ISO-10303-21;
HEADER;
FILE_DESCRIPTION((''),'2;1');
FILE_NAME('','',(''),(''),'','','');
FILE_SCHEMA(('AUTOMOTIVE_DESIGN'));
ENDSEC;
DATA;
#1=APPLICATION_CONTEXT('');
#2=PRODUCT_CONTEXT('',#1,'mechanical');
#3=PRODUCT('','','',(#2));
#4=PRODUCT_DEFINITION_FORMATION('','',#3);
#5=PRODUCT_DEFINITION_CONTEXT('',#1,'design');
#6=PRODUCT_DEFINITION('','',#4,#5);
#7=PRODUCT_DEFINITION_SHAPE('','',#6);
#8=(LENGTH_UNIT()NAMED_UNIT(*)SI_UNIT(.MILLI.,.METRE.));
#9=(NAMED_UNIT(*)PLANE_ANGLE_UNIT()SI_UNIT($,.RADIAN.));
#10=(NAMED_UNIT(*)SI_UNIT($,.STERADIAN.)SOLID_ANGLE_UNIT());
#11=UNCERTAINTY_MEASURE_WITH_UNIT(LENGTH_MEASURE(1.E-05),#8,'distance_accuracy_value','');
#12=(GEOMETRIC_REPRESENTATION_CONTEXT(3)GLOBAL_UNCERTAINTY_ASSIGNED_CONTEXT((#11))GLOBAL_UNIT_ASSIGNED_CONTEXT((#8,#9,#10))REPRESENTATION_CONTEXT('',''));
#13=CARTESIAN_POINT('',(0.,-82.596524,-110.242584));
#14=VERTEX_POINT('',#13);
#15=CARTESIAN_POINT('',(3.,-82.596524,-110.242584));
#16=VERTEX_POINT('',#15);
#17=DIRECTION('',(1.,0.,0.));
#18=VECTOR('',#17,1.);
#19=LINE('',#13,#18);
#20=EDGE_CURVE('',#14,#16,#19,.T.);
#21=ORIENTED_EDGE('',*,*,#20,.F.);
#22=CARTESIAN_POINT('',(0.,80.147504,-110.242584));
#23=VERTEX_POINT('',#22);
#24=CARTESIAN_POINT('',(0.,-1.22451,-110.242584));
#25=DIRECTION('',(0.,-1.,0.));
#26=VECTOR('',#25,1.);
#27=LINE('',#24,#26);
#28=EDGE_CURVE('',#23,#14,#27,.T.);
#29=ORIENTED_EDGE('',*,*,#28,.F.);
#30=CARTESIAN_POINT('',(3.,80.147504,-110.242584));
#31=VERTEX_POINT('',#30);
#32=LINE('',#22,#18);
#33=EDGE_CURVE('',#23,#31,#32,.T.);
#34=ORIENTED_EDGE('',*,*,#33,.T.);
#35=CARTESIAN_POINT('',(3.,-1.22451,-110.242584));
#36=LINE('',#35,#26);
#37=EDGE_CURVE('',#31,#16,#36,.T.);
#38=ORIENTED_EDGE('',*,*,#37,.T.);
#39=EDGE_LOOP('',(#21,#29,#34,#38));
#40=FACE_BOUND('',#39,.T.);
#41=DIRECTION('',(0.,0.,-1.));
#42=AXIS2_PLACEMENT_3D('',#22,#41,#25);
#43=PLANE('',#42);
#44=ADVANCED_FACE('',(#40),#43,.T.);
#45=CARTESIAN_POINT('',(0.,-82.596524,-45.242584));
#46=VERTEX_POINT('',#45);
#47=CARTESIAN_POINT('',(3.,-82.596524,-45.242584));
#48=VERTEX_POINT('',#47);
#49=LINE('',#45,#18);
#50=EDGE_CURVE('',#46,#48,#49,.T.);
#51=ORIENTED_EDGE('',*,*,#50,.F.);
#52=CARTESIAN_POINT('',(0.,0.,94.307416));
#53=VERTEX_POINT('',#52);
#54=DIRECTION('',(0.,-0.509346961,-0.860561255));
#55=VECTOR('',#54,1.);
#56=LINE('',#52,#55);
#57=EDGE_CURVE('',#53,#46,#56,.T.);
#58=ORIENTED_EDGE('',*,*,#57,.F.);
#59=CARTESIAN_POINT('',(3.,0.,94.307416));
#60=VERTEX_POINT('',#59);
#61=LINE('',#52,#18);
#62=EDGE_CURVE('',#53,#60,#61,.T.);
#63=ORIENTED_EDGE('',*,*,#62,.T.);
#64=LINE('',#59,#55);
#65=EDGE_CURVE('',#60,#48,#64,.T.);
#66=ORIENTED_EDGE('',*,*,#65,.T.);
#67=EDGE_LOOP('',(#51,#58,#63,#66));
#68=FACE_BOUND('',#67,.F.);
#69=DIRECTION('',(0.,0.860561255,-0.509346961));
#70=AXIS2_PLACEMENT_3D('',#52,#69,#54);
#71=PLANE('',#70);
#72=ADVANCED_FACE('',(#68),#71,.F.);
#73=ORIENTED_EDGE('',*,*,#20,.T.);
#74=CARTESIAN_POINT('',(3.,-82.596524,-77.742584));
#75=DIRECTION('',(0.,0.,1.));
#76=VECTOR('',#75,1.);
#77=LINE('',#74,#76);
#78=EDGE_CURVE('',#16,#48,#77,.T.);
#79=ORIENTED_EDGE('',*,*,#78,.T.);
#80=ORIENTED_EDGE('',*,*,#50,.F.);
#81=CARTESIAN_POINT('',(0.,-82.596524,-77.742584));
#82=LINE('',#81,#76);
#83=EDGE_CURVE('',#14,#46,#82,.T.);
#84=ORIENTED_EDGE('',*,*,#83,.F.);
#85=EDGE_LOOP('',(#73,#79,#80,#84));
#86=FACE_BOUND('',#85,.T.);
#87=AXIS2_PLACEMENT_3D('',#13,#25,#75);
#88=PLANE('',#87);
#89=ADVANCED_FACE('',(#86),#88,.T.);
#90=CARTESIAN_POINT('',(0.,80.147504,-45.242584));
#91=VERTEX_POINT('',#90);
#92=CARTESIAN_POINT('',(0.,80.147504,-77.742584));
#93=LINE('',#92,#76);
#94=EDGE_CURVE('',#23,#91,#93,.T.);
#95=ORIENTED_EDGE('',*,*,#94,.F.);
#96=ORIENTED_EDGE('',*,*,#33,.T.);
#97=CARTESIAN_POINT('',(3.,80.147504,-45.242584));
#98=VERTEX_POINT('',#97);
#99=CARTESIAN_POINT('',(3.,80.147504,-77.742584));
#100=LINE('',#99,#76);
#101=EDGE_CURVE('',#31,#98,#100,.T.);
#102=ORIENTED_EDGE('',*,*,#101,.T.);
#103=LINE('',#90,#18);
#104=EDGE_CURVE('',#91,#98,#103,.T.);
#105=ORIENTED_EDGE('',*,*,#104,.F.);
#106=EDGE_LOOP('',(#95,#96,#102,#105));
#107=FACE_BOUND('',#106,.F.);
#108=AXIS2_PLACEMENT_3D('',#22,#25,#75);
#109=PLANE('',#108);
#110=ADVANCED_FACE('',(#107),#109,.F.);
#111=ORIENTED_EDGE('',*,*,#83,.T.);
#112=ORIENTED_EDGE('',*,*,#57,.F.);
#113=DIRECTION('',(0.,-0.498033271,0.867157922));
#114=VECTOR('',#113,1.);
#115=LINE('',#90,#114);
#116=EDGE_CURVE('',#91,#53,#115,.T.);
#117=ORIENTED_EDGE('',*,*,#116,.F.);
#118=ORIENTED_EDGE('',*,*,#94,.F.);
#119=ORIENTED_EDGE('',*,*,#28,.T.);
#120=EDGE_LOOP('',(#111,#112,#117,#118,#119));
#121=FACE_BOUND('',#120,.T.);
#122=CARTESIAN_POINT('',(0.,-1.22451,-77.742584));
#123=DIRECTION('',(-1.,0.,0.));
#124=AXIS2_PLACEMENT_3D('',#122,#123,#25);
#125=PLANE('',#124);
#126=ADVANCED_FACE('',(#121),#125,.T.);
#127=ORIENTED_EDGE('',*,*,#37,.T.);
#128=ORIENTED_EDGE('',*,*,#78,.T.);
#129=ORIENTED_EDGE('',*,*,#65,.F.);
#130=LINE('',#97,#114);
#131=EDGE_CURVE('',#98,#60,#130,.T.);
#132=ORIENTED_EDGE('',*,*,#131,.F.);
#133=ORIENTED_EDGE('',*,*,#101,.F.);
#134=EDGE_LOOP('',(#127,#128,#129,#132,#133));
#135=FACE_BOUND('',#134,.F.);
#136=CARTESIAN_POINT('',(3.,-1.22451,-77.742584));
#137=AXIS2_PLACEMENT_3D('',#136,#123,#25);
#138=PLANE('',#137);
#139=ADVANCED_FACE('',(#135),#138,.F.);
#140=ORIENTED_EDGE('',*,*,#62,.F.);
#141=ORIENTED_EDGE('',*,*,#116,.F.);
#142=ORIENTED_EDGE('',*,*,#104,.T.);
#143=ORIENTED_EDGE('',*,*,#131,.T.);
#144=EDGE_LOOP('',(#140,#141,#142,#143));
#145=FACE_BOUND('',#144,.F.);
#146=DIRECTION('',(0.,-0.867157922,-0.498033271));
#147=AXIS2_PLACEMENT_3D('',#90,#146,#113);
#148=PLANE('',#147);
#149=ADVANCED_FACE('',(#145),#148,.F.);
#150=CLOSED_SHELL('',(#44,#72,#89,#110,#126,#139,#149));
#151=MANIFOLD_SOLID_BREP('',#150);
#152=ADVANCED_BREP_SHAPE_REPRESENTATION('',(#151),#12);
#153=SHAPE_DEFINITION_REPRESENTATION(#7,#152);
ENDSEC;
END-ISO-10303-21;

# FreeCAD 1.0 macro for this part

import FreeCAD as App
import Part
import Sketcher

V = App.Vector
Q = App.Units.Quantity

doc = App.newDocument("Part")
params = doc.addObject("Spreadsheet::Sheet", "Params")
for row, (alias, value) in enumerate([
    ("pad1_length", "3 mm"),
    ("sketch2_height", "65 mm"),
    ("pad2_length", "3 mm"),
], start=1):
    params.set(f"A{row}", alias)
    params.set(f"B{row}", "=" + value)
    params.setAlias(f"B{row}", alias)

body = doc.addObject("PartDesign::Body", "Body")

# Sketch on YZ plane
sketch1 = body.newObject("Sketcher::SketchObject", "Sketch")
sketch1.AttachmentSupport = (doc.getObject("YZ_Plane"), [""])
sketch1.MapMode = "FlatFace"
sketch1.addGeometry([
    Part.LineSegment(V(0, 94, 0), V(-83, -45, 0)),
    Part.LineSegment(V(-83, -45, 0), V(80, -45, 0)),
    Part.LineSegment(V(80, -45, 0), V(0, 94, 0)),
], False)
sketch1.addConstraint([
    Sketcher.Constraint("Coincident", 0, 2, 1, 1),
    Sketcher.Constraint("Coincident", 1, 2, 2, 1),
    Sketcher.Constraint("Coincident", 2, 2, 0, 1),
    Sketcher.Constraint("Horizontal", 1),
    Sketcher.Constraint("PointOnObject", 2, 2, -2),
    Sketcher.Constraint("DistanceY", 1, 2, 2, 2, Q("139.55 mm")),
    Sketcher.Constraint("DistanceX", 1, 1, 1, 2, Q("162.744028 mm")),
    Sketcher.Constraint("Distance", 0, Q("162.161612 mm")),
    Sketcher.Constraint("DistanceY", 0, 2, -1, 1, Q("45.242584 mm")),
])
pad1 = body.newObject("PartDesign::Pad", "Pad")
pad1.Profile = sketch1
pad1.setExpression("Length", "Params.pad1_length")

# Sketch on YZ plane
sketch2 = body.newObject("Sketcher::SketchObject", "Sketch001")
sketch2.AttachmentSupport = (doc.getObject("YZ_Plane"), [""])
sketch2.MapMode = "FlatFace"
sketch2.addGeometry([
    Part.LineSegment(V(80, -45, 0), V(80, -110, 0)),
    Part.LineSegment(V(80, -110, 0), V(-83, -110, 0)),
    Part.LineSegment(V(-83, -110, 0), V(-83, -45, 0)),
    Part.LineSegment(V(-83, -45, 0), V(80, -45, 0)),
], False)
sketch2.addConstraint([
    Sketcher.Constraint("Coincident", 0, 2, 1, 1),
    Sketcher.Constraint("Coincident", 1, 2, 2, 1),
    Sketcher.Constraint("Coincident", 2, 2, 3, 1),
    Sketcher.Constraint("Coincident", 3, 2, 0, 1),
    Sketcher.Constraint("Vertical", 0),
    Sketcher.Constraint("Horizontal", 1),
    Sketcher.Constraint("Vertical", 2),
    Sketcher.Constraint("Horizontal", 3),
    Sketcher.Constraint("DistanceY", 0, 2, 0, 1, Q("65 mm")),
    Sketcher.Constraint("DistanceX", 1, 2, 1, 1, Q("162.744028 mm")),
    Sketcher.Constraint("DistanceX", -1, 1, 0, 2, Q("80.147504 mm")),
    Sketcher.Constraint("DistanceY", 0, 2, -1, 1, Q("110.242584 mm")),
])
sketch2.setExpression("Constraints[8]", "Params.sketch2_height")
pad2 = body.newObject("PartDesign::Pad", "Pad001")
pad2.Profile = sketch2
pad2.setExpression("Length", "Params.pad2_length")

doc.recompute()
